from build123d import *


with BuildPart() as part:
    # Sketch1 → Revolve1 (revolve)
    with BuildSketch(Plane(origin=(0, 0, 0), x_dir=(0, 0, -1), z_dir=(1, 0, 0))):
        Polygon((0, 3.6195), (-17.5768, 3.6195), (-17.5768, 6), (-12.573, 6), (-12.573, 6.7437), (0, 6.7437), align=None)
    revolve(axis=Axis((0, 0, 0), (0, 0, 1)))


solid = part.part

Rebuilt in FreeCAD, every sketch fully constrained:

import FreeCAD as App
import Part
import Sketcher
Q = App.Units.Quantity


def add_polygon(sketch, points):
    """Adds a closed chain of lines whose ends are joined by coincident constraints."""
    first, n = sketch.GeometryCount, len(points)
    for a, b in zip(points, points[1:] + points[:1]):
        sketch.addGeometry(Part.LineSegment(App.Vector(*a, 0), App.Vector(*b, 0)), False)
    for i in range(n):
        sketch.addConstraint(Sketcher.Constraint("Coincident", first + i, 2, first + (i + 1) % n, 1))

doc = App.newDocument("Part")
body = doc.addObject("PartDesign::Body", "Body")

sketch1 = body.newObject("Sketcher::SketchObject", "Sketch")
sketch1.AttachmentSupport = (doc.getObject("YZ_Plane"), [""])
sketch1.MapMode = "FlatFace"
add_polygon(sketch1, [(3.6195, 17.5768), (3.6195, 0), (6.7437, 0), (6.7437, 12.573), (6, 12.573), (6, 17.5768)])
sketch1.addConstraint([
    Sketcher.Constraint("Vertical", 0),
    Sketcher.Constraint("Horizontal", 1),
    Sketcher.Constraint("Vertical", 2),
    Sketcher.Constraint("Horizontal", 3),
    Sketcher.Constraint("Vertical", 4),
    Sketcher.Constraint("Horizontal", 5),
    Sketcher.Constraint("PointOnObject", 0, 2, -1),
    Sketcher.Constraint("DistanceX", 1, 1, 1, 2, Q("0.123 in")),
    Sketcher.Constraint("DistanceY", 0, 2, 0, 1, Q("0.692 in")),
    Sketcher.Constraint("DistanceY", 2, 1, 2, 2, Q("0.495 in")),
    Sketcher.Constraint("DistanceX", 3, 2, 3, 1, Q("0.7437 mm")),
    Sketcher.Constraint("DistanceX", -1, 1, 0, 2, Q("0.1425 in")),
])
revolution = body.newObject("PartDesign::Revolution", "Revolution")
revolution.Profile = sketch1
revolution.ReferenceAxis = (sketch1, ["V_Axis"])
revolution.Angle = 360

doc.recompute()
